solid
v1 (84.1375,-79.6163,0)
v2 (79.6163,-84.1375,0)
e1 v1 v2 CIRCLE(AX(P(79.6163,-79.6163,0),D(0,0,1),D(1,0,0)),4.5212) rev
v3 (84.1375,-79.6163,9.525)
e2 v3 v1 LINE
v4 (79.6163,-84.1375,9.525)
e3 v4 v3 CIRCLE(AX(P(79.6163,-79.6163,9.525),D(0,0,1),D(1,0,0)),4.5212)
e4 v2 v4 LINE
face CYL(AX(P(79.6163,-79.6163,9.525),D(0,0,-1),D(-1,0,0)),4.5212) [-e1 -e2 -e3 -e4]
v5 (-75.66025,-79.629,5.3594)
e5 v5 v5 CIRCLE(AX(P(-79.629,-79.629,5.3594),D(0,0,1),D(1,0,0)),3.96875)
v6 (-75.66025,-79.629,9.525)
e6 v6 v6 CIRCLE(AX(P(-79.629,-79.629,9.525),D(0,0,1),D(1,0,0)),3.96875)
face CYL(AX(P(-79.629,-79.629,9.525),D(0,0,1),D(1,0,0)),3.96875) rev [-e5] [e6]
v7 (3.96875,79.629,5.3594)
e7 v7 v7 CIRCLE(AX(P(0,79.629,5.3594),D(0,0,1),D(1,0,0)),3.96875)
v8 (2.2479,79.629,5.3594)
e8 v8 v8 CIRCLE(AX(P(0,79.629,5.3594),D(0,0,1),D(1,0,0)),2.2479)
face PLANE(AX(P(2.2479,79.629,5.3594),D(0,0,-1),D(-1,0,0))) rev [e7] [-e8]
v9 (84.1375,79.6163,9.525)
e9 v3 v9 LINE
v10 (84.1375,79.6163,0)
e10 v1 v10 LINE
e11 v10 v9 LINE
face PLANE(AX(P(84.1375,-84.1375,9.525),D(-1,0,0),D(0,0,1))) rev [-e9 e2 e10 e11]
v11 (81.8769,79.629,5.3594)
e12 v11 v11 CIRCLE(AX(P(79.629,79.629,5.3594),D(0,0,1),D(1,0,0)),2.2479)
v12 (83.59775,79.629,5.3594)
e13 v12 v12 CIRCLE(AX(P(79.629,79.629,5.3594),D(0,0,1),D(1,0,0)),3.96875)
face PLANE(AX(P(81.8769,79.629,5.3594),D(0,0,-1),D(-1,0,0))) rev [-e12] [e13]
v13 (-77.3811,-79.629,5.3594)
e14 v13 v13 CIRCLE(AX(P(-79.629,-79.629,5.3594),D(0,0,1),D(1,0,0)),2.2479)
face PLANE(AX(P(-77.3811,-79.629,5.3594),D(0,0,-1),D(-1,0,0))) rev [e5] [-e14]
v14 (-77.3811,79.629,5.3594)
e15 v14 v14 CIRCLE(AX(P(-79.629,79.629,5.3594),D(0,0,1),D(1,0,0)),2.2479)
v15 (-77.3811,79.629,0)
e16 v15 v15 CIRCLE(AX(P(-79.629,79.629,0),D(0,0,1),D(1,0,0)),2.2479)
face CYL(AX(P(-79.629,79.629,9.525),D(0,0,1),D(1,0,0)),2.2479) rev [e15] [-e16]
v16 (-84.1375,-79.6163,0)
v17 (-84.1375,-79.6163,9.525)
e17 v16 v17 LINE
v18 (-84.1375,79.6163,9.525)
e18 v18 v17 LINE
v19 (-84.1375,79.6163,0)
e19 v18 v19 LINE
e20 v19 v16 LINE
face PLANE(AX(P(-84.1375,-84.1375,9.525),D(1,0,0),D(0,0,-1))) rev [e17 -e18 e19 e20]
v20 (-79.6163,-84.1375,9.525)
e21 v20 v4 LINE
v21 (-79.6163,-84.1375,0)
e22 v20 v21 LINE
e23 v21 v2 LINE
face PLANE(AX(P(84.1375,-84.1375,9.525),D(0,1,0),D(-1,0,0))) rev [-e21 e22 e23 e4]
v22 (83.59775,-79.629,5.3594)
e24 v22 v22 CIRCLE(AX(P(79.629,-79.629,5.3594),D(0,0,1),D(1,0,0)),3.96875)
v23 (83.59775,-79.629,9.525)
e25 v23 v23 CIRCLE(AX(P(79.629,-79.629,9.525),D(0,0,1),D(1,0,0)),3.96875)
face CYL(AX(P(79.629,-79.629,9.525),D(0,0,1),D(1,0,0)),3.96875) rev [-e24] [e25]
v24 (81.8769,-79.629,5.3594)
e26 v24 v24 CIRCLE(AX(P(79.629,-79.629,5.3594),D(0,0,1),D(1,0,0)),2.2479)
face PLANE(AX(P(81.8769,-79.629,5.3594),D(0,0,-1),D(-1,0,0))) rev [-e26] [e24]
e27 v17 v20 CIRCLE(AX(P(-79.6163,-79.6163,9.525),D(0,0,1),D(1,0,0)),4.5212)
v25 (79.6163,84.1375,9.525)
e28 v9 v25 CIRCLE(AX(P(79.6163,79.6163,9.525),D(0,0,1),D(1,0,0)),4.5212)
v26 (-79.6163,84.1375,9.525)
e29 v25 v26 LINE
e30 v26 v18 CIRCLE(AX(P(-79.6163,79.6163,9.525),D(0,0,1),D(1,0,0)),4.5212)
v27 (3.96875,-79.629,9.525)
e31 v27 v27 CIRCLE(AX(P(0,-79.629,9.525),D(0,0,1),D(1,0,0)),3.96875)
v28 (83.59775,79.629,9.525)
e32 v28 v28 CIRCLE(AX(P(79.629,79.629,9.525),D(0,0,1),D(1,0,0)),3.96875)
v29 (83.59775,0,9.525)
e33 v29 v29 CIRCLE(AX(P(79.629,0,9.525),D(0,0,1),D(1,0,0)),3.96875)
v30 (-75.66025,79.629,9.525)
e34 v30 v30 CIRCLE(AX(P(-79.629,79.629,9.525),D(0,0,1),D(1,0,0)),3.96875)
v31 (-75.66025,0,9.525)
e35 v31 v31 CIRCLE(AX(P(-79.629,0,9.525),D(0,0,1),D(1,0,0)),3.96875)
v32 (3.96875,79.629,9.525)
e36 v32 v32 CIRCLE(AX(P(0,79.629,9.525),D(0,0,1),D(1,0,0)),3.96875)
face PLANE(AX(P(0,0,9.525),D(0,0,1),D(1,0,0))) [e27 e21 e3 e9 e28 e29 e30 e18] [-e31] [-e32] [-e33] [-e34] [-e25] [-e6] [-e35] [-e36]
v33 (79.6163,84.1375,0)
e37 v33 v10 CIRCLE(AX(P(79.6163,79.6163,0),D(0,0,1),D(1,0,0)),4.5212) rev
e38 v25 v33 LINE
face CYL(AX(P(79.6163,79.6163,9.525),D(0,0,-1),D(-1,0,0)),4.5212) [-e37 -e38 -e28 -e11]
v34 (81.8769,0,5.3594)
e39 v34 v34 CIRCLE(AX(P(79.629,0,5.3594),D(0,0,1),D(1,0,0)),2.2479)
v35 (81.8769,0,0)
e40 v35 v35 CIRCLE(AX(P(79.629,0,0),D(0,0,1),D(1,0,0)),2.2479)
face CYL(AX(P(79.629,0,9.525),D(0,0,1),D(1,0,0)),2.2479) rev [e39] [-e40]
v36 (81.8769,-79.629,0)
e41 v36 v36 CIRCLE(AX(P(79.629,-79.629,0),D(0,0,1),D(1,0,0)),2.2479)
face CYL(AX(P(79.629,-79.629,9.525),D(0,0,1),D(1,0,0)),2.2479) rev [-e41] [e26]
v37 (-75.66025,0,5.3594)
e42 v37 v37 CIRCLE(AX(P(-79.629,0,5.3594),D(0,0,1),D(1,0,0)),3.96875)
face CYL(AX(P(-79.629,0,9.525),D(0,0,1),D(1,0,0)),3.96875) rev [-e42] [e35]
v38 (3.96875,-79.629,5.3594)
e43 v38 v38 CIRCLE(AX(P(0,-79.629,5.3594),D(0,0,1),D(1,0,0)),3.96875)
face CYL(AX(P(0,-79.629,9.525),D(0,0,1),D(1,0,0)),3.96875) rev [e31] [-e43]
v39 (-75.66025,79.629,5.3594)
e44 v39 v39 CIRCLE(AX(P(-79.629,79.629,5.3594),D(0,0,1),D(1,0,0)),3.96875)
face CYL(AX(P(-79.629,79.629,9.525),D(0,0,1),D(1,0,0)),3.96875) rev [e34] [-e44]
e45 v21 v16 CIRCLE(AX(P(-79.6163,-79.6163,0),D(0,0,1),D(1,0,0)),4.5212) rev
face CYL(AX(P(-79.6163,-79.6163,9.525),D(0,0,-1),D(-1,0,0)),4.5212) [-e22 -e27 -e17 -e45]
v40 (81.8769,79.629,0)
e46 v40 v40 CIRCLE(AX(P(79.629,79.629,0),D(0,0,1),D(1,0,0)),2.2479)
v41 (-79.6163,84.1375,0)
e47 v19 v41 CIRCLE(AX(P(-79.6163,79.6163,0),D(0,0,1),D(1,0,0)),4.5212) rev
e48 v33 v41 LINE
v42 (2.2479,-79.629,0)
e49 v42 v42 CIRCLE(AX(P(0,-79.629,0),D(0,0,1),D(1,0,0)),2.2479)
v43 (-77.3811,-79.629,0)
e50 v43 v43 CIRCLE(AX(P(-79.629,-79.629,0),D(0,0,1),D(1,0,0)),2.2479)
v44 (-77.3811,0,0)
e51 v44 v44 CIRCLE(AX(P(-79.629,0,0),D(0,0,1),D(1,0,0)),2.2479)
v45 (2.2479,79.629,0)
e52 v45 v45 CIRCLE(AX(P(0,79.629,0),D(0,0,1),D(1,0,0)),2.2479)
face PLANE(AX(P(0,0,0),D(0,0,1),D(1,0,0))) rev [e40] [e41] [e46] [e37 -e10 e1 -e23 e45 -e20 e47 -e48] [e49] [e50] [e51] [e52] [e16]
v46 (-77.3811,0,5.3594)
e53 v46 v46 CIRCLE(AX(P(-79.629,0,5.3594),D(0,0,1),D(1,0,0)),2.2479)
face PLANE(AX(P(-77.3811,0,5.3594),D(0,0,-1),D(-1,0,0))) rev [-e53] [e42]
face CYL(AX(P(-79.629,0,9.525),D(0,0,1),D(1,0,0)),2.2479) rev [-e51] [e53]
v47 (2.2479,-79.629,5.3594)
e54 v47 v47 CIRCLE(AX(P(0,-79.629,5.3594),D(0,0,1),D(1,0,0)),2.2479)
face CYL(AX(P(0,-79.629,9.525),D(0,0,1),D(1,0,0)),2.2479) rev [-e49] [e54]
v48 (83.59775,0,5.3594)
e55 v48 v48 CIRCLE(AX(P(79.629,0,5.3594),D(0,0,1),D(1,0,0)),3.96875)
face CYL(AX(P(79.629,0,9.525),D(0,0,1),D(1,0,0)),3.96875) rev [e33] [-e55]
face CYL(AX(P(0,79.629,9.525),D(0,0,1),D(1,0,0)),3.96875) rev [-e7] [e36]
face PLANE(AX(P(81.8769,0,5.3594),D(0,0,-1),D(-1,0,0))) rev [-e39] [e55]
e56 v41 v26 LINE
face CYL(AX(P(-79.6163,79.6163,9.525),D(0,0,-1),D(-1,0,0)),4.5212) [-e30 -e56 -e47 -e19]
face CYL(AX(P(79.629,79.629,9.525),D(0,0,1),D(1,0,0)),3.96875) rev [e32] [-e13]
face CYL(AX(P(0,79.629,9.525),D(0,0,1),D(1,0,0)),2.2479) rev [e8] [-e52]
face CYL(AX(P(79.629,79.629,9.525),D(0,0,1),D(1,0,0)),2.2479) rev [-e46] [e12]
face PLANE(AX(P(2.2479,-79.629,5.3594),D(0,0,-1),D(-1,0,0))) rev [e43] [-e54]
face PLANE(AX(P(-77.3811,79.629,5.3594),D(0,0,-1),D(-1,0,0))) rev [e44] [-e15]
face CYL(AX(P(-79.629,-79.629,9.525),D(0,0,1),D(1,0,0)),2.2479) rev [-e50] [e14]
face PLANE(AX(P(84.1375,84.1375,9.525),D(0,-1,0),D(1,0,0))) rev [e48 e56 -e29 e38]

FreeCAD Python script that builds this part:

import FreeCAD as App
import Part
import Sketcher
Q = App.Units.Quantity


def edges_at(feature, points):
    """Names of the edges that pass closest to the given points."""
    edges = feature.Shape.Edges
    near = lambda p: min(range(len(edges)), key=lambda i: edges[i].distToShape(Part.Vertex(*p))[0])
    return sorted({f"Edge{near(p) + 1}" for p in points})

doc = App.newDocument("Part")
body = doc.addObject("PartDesign::Body", "Body")

# Sketch on XY plane
sketch1 = body.newObject("Sketcher::SketchObject", "Sketch")
sketch1.AttachmentSupport = (doc.getObject("XY_Plane"), [""])
sketch1.MapMode = "FlatFace"
sketch1.addGeometry(Part.LineSegment(App.Vector(-84, 84, 0), App.Vector(-84, -84, 0)), False)
sketch1.addGeometry(Part.LineSegment(App.Vector(-84, -84, 0), App.Vector(84, -84, 0)), False)
sketch1.addGeometry(Part.LineSegment(App.Vector(84, -84, 0), App.Vector(84, 84, 0)), False)
sketch1.addGeometry(Part.LineSegment(App.Vector(84, 84, 0), App.Vector(-84, 84, 0)), False)
sketch1.addConstraint(Sketcher.Constraint("Coincident", 0, 2, 1, 1))
sketch1.addConstraint(Sketcher.Constraint("Coincident", 1, 2, 2, 1))
sketch1.addConstraint(Sketcher.Constraint("Coincident", 2, 2, 3, 1))
sketch1.addConstraint(Sketcher.Constraint("Coincident", 3, 2, 0, 1))
sketch1.addConstraint(Sketcher.Constraint("Vertical", 0))
sketch1.addConstraint(Sketcher.Constraint("Horizontal", 1))
sketch1.addConstraint(Sketcher.Constraint("Vertical", 2))
sketch1.addConstraint(Sketcher.Constraint("Horizontal", 3))
sketch1.addConstraint(Sketcher.Constraint("Symmetric", 0, 2, 2, 2, -1, 1))
sketch1.addConstraint(Sketcher.Constraint("Equal", 3, 0))
sketch1.addConstraint(Sketcher.Constraint("DistanceX", 1, 1, 1, 2, Q("6.625 in")))
pad1 = body.newObject("PartDesign::Pad", "Pad")
pad1.Profile = sketch1
pad1.Length = Q("0.375 in")

# Sketch on XY plane
sketch2 = body.newObject("Sketcher::SketchObject", "Sketch001")
sketch2.AttachmentSupport = (doc.getObject("XY_Plane"), [""])
sketch2.MapMode = "FlatFace"
sketch2.AttachmentOffset = App.Placement(App.Vector(0, 0, 0.375 * 25.4), App.Rotation())
sketch2.addGeometry(Part.Circle(App.Vector(-79.6, 79.6, 0), App.Vector(0, 0, 1), 2.2), False)
sketch2.addGeometry(Part.Circle(App.Vector(0, 79.6, 0), App.Vector(0, 0, 1), 2.2), False)
sketch2.addGeometry(Part.Circle(App.Vector(79.6, 79.6, 0), App.Vector(0, 0, 1), 2.2), False)
sketch2.addGeometry(Part.Circle(App.Vector(79.6, 0, 0), App.Vector(0, 0, 1), 2.2), False)
sketch2.addGeometry(Part.Circle(App.Vector(0, -79.6, 0), App.Vector(0, 0, 1), 2.2), False)
sketch2.addGeometry(Part.Circle(App.Vector(79.6, -79.6, 0), App.Vector(0, 0, 1), 2.2), False)
sketch2.addGeometry(Part.Circle(App.Vector(-79.6, 0, 0), App.Vector(0, 0, 1), 2.2), False)
sketch2.addGeometry(Part.Circle(App.Vector(-79.6, -79.6, 0), App.Vector(0, 0, 1), 2.2), False)
sketch2.addConstraint(Sketcher.Constraint("Equal", 0, 1))
sketch2.addConstraint(Sketcher.Constraint("Equal", 1, 2))
sketch2.addConstraint(Sketcher.Constraint("Equal", 2, 3))
sketch2.addConstraint(Sketcher.Constraint("Equal", 3, 4))
sketch2.addConstraint(Sketcher.Constraint("Equal", 4, 5))
sketch2.addConstraint(Sketcher.Constraint("Equal", 5, 6))
sketch2.addConstraint(Sketcher.Constraint("Equal", 6, 7))
sketch2.addConstraint(Sketcher.Constraint("Symmetric", 1, 3, 4, 3, -1, 1))
sketch2.addConstraint(Sketcher.Constraint("Symmetric", 0, 3, 5, 3, -1, 1))
sketch2.addConstraint(Sketcher.Constraint("Symmetric", 3, 3, 6, 3, -1, 1))
sketch2.addConstraint(Sketcher.Constraint("Symmetric", 2, 3, 7, 3, -1, 1))
sketch2.addConstraint(Sketcher.Constraint("Symmetric", 0, 3, 2, 3, -2))
sketch2.addConstraint(Sketcher.Constraint("PointOnObject", 1, 3, -2))
sketch2.addConstraint(Sketcher.Constraint("PointOnObject", 3, 3, -1))
sketch2.addConstraint(Sketcher.Constraint("Horizontal", 0, 3, 1, 3))
sketch2.addConstraint(Sketcher.Constraint("Vertical", 2, 3, 3, 3))
sketch2.addConstraint(Sketcher.Constraint("Diameter", 0, Q("0.177 in")))
sketch2.addConstraint(Sketcher.Constraint("DistanceX", 0, 3, 2, 3, Q("6.27 in")))
sketch2.addConstraint(Sketcher.Constraint("DistanceY", 4, 3, 1, 3, Q("6.27 in")))
doc.recompute()
hole = body.newObject("PartDesign::Hole", "Hole")
hole.Profile = sketch2
hole.ThreadType = "None"
hole.Diameter = Q("0.177 in")
hole.DepthType = "ThroughAll"
hole.HoleCutType = "Counterbore"
hole.HoleCutDiameter = Q("0.3125 in")
hole.HoleCutDepth = Q("0.164 in")
doc.recompute()

fillet = body.newObject("PartDesign::Fillet", "Fillet")
fillet.Base = (hole, edges_at(hole, [
    (-84.138, 84.138, 4.763),
    (84.138, 84.138, 4.763),
    (84.138, -84.138, 4.763),
    (-84.138, -84.138, 4.763),
]))
fillet.Radius = Q("0.178 in")

doc.recompute()
